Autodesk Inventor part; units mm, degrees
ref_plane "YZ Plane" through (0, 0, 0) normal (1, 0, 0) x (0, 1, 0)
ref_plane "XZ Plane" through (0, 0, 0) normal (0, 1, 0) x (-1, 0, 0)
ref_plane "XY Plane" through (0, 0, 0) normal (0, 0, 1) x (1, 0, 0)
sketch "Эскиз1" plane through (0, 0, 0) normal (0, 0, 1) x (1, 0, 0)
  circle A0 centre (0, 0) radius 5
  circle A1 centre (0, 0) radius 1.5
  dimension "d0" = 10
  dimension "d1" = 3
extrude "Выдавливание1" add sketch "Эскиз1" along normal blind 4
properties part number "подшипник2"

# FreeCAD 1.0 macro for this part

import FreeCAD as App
import Part
import Sketcher
Q = App.Units.Quantity

doc = App.newDocument("Part")
body = doc.addObject("PartDesign::Body", "Body")

# Sketch on XY plane
sketch1 = body.newObject("Sketcher::SketchObject", "Sketch")
sketch1.AttachmentSupport = (doc.getObject("XY_Plane"), [""])
sketch1.MapMode = "FlatFace"
sketch1.addGeometry([
    Part.Circle(App.Vector(0, 0, 0), App.Vector(0, 0, 1), 5),
    Part.Circle(App.Vector(0, 0, 0), App.Vector(0, 0, 1), 1.5),
], False)
sketch1.addConstraint([
    Sketcher.Constraint("Coincident", 0, 3, -1, 1),
    Sketcher.Constraint("Coincident", 1, 3, -1, 1),
    Sketcher.Constraint("Diameter", 0, Q("10 mm")),
    Sketcher.Constraint("Diameter", 1, Q("3 mm")),
])
pad1 = body.newObject("PartDesign::Pad", "Pad")
pad1.Profile = sketch1
pad1.Length = 4

doc.recompute()
